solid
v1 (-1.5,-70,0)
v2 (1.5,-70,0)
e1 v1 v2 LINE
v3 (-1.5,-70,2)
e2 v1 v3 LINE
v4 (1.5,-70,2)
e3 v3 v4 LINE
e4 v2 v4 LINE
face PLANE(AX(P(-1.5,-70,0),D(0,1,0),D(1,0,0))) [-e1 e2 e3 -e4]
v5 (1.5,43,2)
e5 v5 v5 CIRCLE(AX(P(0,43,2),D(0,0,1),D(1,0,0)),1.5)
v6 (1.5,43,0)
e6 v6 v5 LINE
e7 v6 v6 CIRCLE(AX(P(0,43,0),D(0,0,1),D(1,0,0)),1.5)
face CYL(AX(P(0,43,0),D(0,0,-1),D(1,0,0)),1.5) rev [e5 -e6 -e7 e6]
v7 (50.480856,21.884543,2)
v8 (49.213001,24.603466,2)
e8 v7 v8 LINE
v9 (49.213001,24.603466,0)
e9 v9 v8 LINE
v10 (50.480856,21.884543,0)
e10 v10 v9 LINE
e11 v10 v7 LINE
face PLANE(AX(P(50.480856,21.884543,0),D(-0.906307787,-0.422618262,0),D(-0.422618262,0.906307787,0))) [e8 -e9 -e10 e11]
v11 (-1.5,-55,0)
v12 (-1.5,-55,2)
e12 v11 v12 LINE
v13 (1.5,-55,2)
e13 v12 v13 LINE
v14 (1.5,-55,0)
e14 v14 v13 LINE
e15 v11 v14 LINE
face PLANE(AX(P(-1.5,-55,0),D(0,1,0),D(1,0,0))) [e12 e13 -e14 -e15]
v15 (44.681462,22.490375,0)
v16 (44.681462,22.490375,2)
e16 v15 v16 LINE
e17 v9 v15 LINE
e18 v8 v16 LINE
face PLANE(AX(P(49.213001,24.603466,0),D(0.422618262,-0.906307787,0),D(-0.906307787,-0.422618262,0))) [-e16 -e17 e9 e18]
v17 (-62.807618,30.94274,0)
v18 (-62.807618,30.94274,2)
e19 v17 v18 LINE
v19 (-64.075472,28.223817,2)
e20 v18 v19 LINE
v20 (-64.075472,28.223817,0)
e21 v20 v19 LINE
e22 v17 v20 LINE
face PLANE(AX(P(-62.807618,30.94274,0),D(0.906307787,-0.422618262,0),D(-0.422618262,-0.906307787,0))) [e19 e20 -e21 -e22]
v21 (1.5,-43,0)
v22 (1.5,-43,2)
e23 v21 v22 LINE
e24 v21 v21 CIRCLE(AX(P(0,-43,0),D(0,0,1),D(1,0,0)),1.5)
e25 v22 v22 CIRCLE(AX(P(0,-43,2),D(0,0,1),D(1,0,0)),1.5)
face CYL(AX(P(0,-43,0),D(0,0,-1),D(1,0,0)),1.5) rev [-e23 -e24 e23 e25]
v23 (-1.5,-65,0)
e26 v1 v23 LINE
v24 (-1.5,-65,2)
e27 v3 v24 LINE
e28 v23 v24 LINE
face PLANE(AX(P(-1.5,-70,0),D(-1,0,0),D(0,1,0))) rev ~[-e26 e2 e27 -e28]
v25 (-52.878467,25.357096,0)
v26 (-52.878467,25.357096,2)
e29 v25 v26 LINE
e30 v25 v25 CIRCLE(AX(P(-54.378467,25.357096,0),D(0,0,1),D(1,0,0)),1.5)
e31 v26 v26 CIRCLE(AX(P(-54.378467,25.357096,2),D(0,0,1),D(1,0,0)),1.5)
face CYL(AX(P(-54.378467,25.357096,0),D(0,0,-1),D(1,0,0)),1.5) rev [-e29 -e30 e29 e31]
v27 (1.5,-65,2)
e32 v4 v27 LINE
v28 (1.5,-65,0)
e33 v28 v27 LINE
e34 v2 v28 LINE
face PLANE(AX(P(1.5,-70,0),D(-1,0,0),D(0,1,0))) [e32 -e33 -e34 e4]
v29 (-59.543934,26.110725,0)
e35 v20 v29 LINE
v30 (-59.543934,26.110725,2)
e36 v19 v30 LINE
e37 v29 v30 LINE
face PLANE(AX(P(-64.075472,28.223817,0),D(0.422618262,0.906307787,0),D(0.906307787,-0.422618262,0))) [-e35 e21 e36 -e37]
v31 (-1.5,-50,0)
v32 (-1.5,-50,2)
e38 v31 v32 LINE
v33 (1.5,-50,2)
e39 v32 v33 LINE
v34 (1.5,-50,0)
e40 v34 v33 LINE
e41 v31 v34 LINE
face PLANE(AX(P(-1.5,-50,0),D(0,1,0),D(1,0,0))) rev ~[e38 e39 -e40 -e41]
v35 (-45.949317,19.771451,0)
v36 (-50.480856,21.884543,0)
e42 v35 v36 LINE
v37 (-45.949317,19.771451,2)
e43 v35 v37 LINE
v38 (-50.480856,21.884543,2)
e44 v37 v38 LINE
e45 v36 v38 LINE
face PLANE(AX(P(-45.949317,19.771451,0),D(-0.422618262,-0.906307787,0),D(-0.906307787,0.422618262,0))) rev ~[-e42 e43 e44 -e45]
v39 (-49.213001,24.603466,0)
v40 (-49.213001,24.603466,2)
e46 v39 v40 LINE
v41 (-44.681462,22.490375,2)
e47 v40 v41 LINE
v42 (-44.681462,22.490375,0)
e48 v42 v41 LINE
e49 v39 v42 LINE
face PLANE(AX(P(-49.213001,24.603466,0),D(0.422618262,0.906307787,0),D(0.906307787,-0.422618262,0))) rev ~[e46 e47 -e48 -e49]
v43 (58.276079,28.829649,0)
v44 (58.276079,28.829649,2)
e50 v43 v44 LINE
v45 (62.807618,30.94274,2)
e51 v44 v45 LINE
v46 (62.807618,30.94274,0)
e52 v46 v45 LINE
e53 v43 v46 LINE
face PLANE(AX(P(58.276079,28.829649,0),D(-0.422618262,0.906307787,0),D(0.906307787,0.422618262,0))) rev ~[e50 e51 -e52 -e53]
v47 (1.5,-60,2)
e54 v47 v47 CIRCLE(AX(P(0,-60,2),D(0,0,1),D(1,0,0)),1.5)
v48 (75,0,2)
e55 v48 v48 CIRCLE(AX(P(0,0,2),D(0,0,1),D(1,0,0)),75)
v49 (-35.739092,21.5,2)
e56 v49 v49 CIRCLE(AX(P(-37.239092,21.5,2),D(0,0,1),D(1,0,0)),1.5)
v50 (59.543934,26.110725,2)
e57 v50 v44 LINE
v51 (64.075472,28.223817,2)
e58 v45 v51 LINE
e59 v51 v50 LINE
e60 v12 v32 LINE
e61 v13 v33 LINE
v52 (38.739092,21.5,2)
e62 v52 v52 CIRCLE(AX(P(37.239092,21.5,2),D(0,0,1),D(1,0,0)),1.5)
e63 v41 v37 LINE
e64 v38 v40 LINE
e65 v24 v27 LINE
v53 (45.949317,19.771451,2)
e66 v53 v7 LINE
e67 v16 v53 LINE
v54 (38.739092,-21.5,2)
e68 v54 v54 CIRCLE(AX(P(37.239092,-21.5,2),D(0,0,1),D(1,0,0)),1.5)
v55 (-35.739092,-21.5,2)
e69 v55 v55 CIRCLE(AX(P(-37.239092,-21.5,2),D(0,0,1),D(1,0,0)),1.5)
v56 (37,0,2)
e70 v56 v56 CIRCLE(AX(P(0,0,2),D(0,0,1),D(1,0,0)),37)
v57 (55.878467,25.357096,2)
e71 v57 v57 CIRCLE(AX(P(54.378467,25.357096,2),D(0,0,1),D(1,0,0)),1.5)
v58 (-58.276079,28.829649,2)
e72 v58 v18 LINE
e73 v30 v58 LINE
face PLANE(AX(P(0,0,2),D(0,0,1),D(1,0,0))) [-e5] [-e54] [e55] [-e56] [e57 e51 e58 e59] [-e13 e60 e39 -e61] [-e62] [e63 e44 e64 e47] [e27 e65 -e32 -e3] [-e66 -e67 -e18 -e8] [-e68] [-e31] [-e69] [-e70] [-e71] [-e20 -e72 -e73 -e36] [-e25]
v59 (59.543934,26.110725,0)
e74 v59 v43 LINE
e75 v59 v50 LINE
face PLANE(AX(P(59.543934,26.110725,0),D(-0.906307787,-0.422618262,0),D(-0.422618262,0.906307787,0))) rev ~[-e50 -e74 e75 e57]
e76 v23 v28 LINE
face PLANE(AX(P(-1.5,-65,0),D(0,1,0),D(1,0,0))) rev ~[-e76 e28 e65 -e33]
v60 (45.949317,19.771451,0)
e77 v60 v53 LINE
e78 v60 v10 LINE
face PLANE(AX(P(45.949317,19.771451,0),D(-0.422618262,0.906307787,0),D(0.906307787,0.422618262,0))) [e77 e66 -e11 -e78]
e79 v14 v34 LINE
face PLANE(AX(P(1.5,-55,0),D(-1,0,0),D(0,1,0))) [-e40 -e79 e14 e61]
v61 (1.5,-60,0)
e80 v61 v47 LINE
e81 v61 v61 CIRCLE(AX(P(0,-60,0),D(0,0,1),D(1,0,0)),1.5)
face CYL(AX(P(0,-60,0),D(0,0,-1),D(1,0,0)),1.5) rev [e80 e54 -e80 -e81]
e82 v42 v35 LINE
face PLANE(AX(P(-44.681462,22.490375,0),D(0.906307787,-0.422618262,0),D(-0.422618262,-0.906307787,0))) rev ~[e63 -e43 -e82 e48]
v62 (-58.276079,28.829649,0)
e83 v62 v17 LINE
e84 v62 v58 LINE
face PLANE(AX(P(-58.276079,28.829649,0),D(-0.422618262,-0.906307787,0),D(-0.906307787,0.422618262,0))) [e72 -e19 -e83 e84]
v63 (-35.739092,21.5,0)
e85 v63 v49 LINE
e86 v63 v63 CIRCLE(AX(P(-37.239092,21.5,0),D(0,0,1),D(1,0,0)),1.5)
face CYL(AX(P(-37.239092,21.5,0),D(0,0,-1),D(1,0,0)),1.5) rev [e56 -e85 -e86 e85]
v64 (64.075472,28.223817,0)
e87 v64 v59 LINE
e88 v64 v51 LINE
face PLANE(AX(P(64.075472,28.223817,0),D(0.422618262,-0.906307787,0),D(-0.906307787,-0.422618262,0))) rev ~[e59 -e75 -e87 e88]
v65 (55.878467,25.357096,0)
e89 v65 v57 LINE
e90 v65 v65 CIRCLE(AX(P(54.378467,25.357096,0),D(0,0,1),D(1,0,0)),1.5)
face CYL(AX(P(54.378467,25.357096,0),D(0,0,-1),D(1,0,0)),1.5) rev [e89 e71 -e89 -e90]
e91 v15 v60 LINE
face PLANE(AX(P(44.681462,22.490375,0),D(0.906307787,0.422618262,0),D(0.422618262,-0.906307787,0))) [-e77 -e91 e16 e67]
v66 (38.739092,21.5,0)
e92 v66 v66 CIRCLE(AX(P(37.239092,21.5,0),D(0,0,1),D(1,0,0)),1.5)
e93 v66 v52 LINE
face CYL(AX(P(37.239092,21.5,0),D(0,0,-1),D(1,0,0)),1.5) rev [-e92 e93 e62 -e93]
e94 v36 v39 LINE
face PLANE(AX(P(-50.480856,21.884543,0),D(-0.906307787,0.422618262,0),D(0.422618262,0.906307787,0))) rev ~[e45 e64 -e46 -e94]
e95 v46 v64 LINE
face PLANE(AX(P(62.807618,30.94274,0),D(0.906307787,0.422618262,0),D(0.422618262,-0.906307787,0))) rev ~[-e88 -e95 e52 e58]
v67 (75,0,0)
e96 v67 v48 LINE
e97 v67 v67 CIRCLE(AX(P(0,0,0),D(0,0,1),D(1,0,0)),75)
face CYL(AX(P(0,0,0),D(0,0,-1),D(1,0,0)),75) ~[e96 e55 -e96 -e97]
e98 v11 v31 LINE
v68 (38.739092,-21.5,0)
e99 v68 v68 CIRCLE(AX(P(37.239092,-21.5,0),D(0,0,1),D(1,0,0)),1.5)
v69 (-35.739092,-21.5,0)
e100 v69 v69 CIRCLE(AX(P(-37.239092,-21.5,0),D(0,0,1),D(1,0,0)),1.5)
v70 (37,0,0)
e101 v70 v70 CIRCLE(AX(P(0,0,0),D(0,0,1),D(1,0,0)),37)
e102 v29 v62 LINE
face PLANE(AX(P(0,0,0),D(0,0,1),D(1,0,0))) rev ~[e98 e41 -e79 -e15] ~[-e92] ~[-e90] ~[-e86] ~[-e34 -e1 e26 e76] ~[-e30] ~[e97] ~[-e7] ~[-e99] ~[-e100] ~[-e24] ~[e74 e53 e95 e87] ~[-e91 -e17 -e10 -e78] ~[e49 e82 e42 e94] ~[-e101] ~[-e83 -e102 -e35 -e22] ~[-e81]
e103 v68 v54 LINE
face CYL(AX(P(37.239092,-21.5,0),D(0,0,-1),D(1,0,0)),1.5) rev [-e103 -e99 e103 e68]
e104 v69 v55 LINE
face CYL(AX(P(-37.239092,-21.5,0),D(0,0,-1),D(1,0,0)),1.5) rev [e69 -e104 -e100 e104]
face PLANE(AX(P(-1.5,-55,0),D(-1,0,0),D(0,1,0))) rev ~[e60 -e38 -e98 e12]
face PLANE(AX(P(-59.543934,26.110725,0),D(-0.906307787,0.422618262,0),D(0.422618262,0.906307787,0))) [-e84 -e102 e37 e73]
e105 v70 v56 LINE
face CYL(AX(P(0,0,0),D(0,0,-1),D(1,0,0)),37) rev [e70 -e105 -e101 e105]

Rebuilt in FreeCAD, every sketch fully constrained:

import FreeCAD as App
import Part
import Sketcher

V = App.Vector
Q = App.Units.Quantity


def add_polygon(sketch, points):
    """Adds a closed chain of lines whose ends are joined by coincident constraints."""
    first, n = sketch.GeometryCount, len(points)
    for a, b in zip(points, points[1:] + points[:1]):
        sketch.addGeometry(Part.LineSegment(App.Vector(*a, 0), App.Vector(*b, 0)), False)
    for i in range(n):
        sketch.addConstraint(Sketcher.Constraint("Coincident", first + i, 2, first + (i + 1) % n, 1))

doc = App.newDocument("Part")
body = doc.addObject("PartDesign::Body", "Body")

# Sketch on XY plane
sketch1 = body.newObject("Sketcher::SketchObject", "Sketch")
sketch1.AttachmentSupport = (doc.getObject("XY_Plane"), [""])
sketch1.MapMode = "FlatFace"
sketch1.addGeometry(Part.Circle(V(0, 0, 0), V(0, 0, 1), 75), False)  # 0
sketch1.addGeometry(Part.Circle(V(-37.2, -21.5, 0), V(0, 0, 1), 1.5), False)  # 1
add_polygon(sketch1, [(1.5, -70), (-1.5, -70), (-1.5, -65), (1.5, -65)])  # lines 2-5
sketch1.addGeometry(Part.Circle(V(0, -60, 0), V(0, 0, 1), 1.5), False)  # 6
add_polygon(sketch1, [(1.5, -55), (-1.5, -55), (-1.5, -50), (1.5, -50)])  # lines 7-10
sketch1.addGeometry(Part.Circle(V(0, -43, 0), V(0, 0, 1), 1.5), False)  # 11
sketch1.addGeometry(Part.Circle(V(37.2, -21.5, 0), V(0, 0, 1), 1.5), False)  # 12
add_polygon(sketch1, [(-62.8, 30.9), (-58.3, 28.8), (-59.5, 26.1), (-64.1, 28.2)])  # lines 13-16
sketch1.addGeometry(Part.Circle(V(-54.4, 25.4, 0), V(0, 0, 1), 1.5), False)  # 17
add_polygon(sketch1, [(-50.5, 21.9), (-49.2, 24.6), (-44.7, 22.5), (-45.9, 19.8)])  # lines 18-21
sketch1.addGeometry(Part.Circle(V(-37.2, 21.5, 0), V(0, 0, 1), 1.5), False)  # 22
sketch1.addGeometry(Part.Circle(V(0, 0, 0), V(0, 0, 1), 37), False)  # 23
sketch1.addGeometry(Part.Circle(V(0, 43, 0), V(0, 0, 1), 1.5), False)  # 24
sketch1.addGeometry(Part.Circle(V(37.2, 21.5, 0), V(0, 0, 1), 1.5), False)  # 25
add_polygon(sketch1, [(44.7, 22.5), (49.2, 24.6), (50.5, 21.9), (45.9, 19.8)])  # lines 26-29
sketch1.addGeometry(Part.Circle(V(54.4, 25.4, 0), V(0, 0, 1), 1.5), False)  # 30
add_polygon(sketch1, [(59.5, 26.1), (58.3, 28.8), (62.8, 30.9), (64.1, 28.2)])  # lines 31-34
sketch1.addConstraint(Sketcher.Constraint("Horizontal", 2))
sketch1.addConstraint(Sketcher.Constraint("Vertical", 3))
sketch1.addConstraint(Sketcher.Constraint("Horizontal", 4))
sketch1.addConstraint(Sketcher.Constraint("Vertical", 5))
sketch1.addConstraint(Sketcher.Constraint("Horizontal", 7))
sketch1.addConstraint(Sketcher.Constraint("Vertical", 8))
sketch1.addConstraint(Sketcher.Constraint("Horizontal", 9))
sketch1.addConstraint(Sketcher.Constraint("Vertical", 10))
sketch1.addConstraint(Sketcher.Constraint("Coincident", 0, 3, -1, 1))
sketch1.addConstraint(Sketcher.Constraint("Coincident", 23, 3, -1, 1))
sketch1.addConstraint(Sketcher.Constraint("Equal", 1, 6))
sketch1.addConstraint(Sketcher.Constraint("Equal", 6, 11))
sketch1.addConstraint(Sketcher.Constraint("Equal", 11, 12))
sketch1.addConstraint(Sketcher.Constraint("Equal", 12, 17))
sketch1.addConstraint(Sketcher.Constraint("Equal", 17, 22))
sketch1.addConstraint(Sketcher.Constraint("Equal", 22, 24))
sketch1.addConstraint(Sketcher.Constraint("Equal", 24, 25))
sketch1.addConstraint(Sketcher.Constraint("Equal", 25, 30))
sketch1.addConstraint(Sketcher.Constraint("Symmetric", 12, 3, 22, 3, -1, 1))
sketch1.addConstraint(Sketcher.Constraint("Symmetric", 11, 3, 24, 3, -1, 1))
sketch1.addConstraint(Sketcher.Constraint("Symmetric", 1, 3, 25, 3, -1, 1))
sketch1.addConstraint(Sketcher.Constraint("Symmetric", 1, 3, 12, 3, -2))
sketch1.addConstraint(Sketcher.Constraint("Symmetric", 17, 3, 30, 3, -2))
sketch1.addConstraint(Sketcher.Constraint("Symmetric", 18, 2, 26, 2, -2))
sketch1.addConstraint(Sketcher.Constraint("Symmetric", 21, 2, 27, 2, -2))
sketch1.addConstraint(Sketcher.Constraint("Symmetric", 20, 2, 28, 2, -2))
sketch1.addConstraint(Sketcher.Constraint("Symmetric", 19, 2, 29, 2, -2))
sketch1.addConstraint(Sketcher.Constraint("Symmetric", 13, 2, 31, 2, -2))
sketch1.addConstraint(Sketcher.Constraint("Symmetric", 16, 2, 32, 2, -2))
sketch1.addConstraint(Sketcher.Constraint("Symmetric", 15, 2, 33, 2, -2))
sketch1.addConstraint(Sketcher.Constraint("Symmetric", 14, 2, 34, 2, -2))
sketch1.addConstraint(Sketcher.Constraint("PointOnObject", 6, 3, -2))
sketch1.addConstraint(Sketcher.Constraint("PointOnObject", 11, 3, -2))
sketch1.addConstraint(Sketcher.Constraint("Perpendicular", 13, 14))
sketch1.addConstraint(Sketcher.Constraint("Perpendicular", 14, 15))
sketch1.addConstraint(Sketcher.Constraint("Perpendicular", 15, 16))
sketch1.addConstraint(Sketcher.Constraint("Parallel", 16, 18))
sketch1.addConstraint(Sketcher.Constraint("Perpendicular", 18, 19))
sketch1.addConstraint(Sketcher.Constraint("Perpendicular", 19, 20))
sketch1.addConstraint(Sketcher.Constraint("Perpendicular", 20, 21))
sketch1.addConstraint(Sketcher.Constraint("Vertical", 3, 2, 7, 2))
sketch1.addConstraint(Sketcher.Constraint("Vertical", 5, 2, 9, 2))
sketch1.addConstraint(Sketcher.Constraint("Equal", 5, 8))
sketch1.addConstraint(Sketcher.Constraint("Equal", 16, 18))
sketch1.addConstraint(Sketcher.Constraint("Equal", 15, 19))
sketch1.addConstraint(Sketcher.Constraint("Diameter", 0, Q("150 mm")))
sketch1.addConstraint(Sketcher.Constraint("Diameter", 1, Q("3 mm")))
sketch1.addConstraint(Sketcher.Constraint("Diameter", 23, Q("74 mm")))
sketch1.addConstraint(Sketcher.Constraint("DistanceX", 2, 2, 2, 1, Q("3 mm")))
sketch1.addConstraint(Sketcher.Constraint("DistanceY", 3, 1, 3, 2, Q("5 mm")))
sketch1.addConstraint(Sketcher.Constraint("Angle", 13, Q("-25 deg")))
sketch1.addConstraint(Sketcher.Constraint("Distance", 13, Q("5 mm")))
sketch1.addConstraint(Sketcher.Constraint("Distance", 14, Q("3 mm")))
sketch1.addConstraint(Sketcher.Constraint("DistanceY", 6, 3, -1, 1, Q("60 mm")))
sketch1.addConstraint(Sketcher.Constraint("DistanceY", 11, 3, -1, 1, Q("43 mm")))
sketch1.addConstraint(Sketcher.Constraint("DistanceY", 2, 2, -1, 1, Q("70 mm")))
sketch1.addConstraint(Sketcher.Constraint("DistanceY", 7, 2, -1, 1, Q("55 mm")))
sketch1.addConstraint(Sketcher.Constraint("DistanceY", 1, 3, 22, 3, Q("43 mm")))
sketch1.addConstraint(Sketcher.Constraint("DistanceX", 2, 2, -1, 1, Q("1.5 mm")))
sketch1.addConstraint(Sketcher.Constraint("DistanceX", 18, 2, -1, 1, Q("49.213001 mm")))
sketch1.addConstraint(Sketcher.Constraint("DistanceX", 13, 2, -1, 1, Q("58.276079 mm")))
sketch1.addConstraint(Sketcher.Constraint("DistanceY", -1, 1, 13, 2, Q("28.829649 mm")))
sketch1.addConstraint(Sketcher.Constraint("DistanceY", -1, 1, 20, 2, Q("19.771451 mm")))
sketch1.addConstraint(Sketcher.Constraint("DistanceX", 17, 3, 12, 3, Q("91.61756 mm")))
sketch1.addConstraint(Sketcher.Constraint("DistanceX", 13, 2, 17, 3, Q("3.897612 mm")))
sketch1.addConstraint(Sketcher.Constraint("DistanceY", 17, 3, 14, 2, Q("0.75363 mm")))
pad1 = body.newObject("PartDesign::Pad", "Pad")
pad1.Profile = sketch1
pad1.Length = 2

doc.recompute()
